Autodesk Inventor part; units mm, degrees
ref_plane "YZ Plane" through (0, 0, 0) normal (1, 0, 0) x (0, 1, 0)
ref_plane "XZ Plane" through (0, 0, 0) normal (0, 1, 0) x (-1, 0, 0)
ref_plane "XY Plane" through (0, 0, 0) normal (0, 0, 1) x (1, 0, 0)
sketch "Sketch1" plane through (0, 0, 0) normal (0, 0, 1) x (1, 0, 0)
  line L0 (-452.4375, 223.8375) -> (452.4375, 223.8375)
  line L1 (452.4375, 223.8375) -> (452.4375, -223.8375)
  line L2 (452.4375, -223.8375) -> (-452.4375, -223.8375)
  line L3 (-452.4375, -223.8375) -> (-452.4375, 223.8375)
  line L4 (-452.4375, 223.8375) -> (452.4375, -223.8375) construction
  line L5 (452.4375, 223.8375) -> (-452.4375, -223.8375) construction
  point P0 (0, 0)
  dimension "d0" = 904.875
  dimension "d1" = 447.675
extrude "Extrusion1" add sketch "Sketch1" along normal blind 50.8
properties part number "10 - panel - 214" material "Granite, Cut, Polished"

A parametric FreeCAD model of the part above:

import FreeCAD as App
import Part
import Sketcher
from FreeCAD import Vector
Q = App.Units.Quantity

doc = App.newDocument("Part")
params = doc.addObject("Spreadsheet::Sheet", "Params")
for row, (alias, value) in enumerate([
    ("sketch1_width", "35.625 in"),
    ("sketch1_height", "17.625 in"),
    ("pad1_length", "2 in"),
], start=1):
    params.set(f"A{row}", alias)
    params.set(f"B{row}", "=" + value)
    params.setAlias(f"B{row}", alias)

body = doc.addObject("PartDesign::Body", "Body")

sketch1 = body.newObject("Sketcher::SketchObject", "Sketch")
sketch1.AttachmentSupport = (doc.getObject("XY_Plane"), [""])
sketch1.MapMode = "FlatFace"
sketch1.addGeometry(Part.LineSegment(Vector(452.4375, 223.8375, 0), Vector(-452.4375, 223.8375, 0)), False)
sketch1.addGeometry(Part.LineSegment(Vector(-452.4375, 223.8375, 0), Vector(-452.4375, -223.8375, 0)), False)
sketch1.addGeometry(Part.LineSegment(Vector(-452.4375, -223.8375, 0), Vector(452.4375, -223.8375, 0)), False)
sketch1.addGeometry(Part.LineSegment(Vector(452.4375, -223.8375, 0), Vector(452.4375, 223.8375, 0)), False)
sketch1.addConstraint(Sketcher.Constraint("Coincident", 0, 2, 1, 1))
sketch1.addConstraint(Sketcher.Constraint("Coincident", 1, 2, 2, 1))
sketch1.addConstraint(Sketcher.Constraint("Coincident", 2, 2, 3, 1))
sketch1.addConstraint(Sketcher.Constraint("Coincident", 3, 2, 0, 1))
sketch1.addConstraint(Sketcher.Constraint("Horizontal", 0))
sketch1.addConstraint(Sketcher.Constraint("Vertical", 1))
sketch1.addConstraint(Sketcher.Constraint("Horizontal", 2))
sketch1.addConstraint(Sketcher.Constraint("Vertical", 3))
sketch1.addConstraint(Sketcher.Constraint("Symmetric", 0, 2, 2, 2, -1, 1))
sketch1.addConstraint(Sketcher.Constraint("DistanceX", 0, 2, 0, 1, Q("35.625 in")))
sketch1.addConstraint(Sketcher.Constraint("DistanceY", 1, 2, 1, 1, Q("17.625 in")))
sketch1.setExpression("Constraints[9]", "Params.sketch1_width")
sketch1.setExpression("Constraints[10]", "Params.sketch1_height")
pad1 = body.newObject("PartDesign::Pad", "Pad")
pad1.Profile = sketch1
pad1.setExpression("Length", "Params.pad1_length")

doc.recompute()
